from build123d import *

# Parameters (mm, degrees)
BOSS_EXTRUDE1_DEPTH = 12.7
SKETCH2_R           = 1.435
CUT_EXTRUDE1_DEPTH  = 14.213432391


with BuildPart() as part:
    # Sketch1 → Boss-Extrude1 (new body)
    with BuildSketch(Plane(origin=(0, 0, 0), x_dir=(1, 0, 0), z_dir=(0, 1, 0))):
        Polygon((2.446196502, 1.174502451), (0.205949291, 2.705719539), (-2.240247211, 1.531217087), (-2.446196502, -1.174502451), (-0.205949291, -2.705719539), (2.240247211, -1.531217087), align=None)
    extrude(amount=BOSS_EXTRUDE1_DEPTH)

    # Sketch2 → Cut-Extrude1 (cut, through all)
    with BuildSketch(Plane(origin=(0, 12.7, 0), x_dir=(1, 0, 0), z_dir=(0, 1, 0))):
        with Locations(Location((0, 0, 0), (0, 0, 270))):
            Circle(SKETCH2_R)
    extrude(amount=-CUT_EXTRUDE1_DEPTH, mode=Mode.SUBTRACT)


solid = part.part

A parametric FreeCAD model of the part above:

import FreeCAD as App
import Part
import Sketcher
from FreeCAD import Vector
Q = App.Units.Quantity


def add_polygon(sketch, points):
    """Adds a closed chain of lines whose ends are joined by coincident constraints."""
    first, n = sketch.GeometryCount, len(points)
    for a, b in zip(points, points[1:] + points[:1]):
        sketch.addGeometry(Part.LineSegment(App.Vector(*a, 0), App.Vector(*b, 0)), False)
    for i in range(n):
        sketch.addConstraint(Sketcher.Constraint("Coincident", first + i, 2, first + (i + 1) % n, 1))

doc = App.newDocument("Part")
body = doc.addObject("PartDesign::Body", "Body")

sketch1 = doc.addObject("Sketcher::SketchObject", "Sketch")
body.addObject(sketch1)
sketch1.AttachmentSupport = (doc.XZ_Plane, [""])
sketch1.MapMode = "FlatFace"
add_polygon(sketch1, [(2.4, -1.2), (0.2, -2.7), (-2.2, -1.5), (-2.4, 1.2), (-0.2, 2.7), (2.2, 1.5)])
sketch1.addConstraint([
    Sketcher.Constraint("Symmetric", 0, 2, 3, 2, -1, 1),
    Sketcher.Constraint("Symmetric", 1, 2, 4, 2, -1, 1),
    Sketcher.Constraint("Symmetric", 2, 2, 5, 2, -1, 1),
    Sketcher.Constraint("Equal", 0, 1),
    Sketcher.Constraint("Equal", 1, 2),
    Sketcher.Constraint("DistanceX", 3, 2, 0, 2, 0.411899),
    Sketcher.Constraint("DistanceY", 0, 2, -1, 1, 2.70572),
    Sketcher.Constraint("DistanceX", 2, 2, 1, 2, 0.205949),
    Sketcher.Constraint("DistanceY", 1, 2, 2, 2, 2.70572),
])
pad1 = doc.addObject("PartDesign::Pad", "Pad")
body.addObject(pad1)
pad1.Profile = sketch1
pad1.Length = Q("0.5 in")
pad1.Reversed = True

sketch2 = doc.addObject("Sketcher::SketchObject", "Sketch001")
body.addObject(sketch2)
sketch2.AttachmentSupport = (doc.XZ_Plane, [""])
sketch2.MapMode = "FlatFace"
sketch2.AttachmentOffset = App.Placement(Vector(0, 0, -0.5 * 25.4), App.Rotation())
sketch2.addGeometry(Part.Circle(Vector(0, 0, 0), Vector(0, 0, 1), 1.4), False)
sketch2.addConstraint([
    Sketcher.Constraint("Coincident", 0, 3, -1, 1),
    Sketcher.Constraint("Diameter", 0, 2.87),
])
pocket1 = doc.addObject("PartDesign::Pocket", "Pocket")
body.addObject(pocket1)
pocket1.Profile = sketch2
pocket1.Type = "ThroughAll"
pocket1.Reversed = True

doc.recompute()
